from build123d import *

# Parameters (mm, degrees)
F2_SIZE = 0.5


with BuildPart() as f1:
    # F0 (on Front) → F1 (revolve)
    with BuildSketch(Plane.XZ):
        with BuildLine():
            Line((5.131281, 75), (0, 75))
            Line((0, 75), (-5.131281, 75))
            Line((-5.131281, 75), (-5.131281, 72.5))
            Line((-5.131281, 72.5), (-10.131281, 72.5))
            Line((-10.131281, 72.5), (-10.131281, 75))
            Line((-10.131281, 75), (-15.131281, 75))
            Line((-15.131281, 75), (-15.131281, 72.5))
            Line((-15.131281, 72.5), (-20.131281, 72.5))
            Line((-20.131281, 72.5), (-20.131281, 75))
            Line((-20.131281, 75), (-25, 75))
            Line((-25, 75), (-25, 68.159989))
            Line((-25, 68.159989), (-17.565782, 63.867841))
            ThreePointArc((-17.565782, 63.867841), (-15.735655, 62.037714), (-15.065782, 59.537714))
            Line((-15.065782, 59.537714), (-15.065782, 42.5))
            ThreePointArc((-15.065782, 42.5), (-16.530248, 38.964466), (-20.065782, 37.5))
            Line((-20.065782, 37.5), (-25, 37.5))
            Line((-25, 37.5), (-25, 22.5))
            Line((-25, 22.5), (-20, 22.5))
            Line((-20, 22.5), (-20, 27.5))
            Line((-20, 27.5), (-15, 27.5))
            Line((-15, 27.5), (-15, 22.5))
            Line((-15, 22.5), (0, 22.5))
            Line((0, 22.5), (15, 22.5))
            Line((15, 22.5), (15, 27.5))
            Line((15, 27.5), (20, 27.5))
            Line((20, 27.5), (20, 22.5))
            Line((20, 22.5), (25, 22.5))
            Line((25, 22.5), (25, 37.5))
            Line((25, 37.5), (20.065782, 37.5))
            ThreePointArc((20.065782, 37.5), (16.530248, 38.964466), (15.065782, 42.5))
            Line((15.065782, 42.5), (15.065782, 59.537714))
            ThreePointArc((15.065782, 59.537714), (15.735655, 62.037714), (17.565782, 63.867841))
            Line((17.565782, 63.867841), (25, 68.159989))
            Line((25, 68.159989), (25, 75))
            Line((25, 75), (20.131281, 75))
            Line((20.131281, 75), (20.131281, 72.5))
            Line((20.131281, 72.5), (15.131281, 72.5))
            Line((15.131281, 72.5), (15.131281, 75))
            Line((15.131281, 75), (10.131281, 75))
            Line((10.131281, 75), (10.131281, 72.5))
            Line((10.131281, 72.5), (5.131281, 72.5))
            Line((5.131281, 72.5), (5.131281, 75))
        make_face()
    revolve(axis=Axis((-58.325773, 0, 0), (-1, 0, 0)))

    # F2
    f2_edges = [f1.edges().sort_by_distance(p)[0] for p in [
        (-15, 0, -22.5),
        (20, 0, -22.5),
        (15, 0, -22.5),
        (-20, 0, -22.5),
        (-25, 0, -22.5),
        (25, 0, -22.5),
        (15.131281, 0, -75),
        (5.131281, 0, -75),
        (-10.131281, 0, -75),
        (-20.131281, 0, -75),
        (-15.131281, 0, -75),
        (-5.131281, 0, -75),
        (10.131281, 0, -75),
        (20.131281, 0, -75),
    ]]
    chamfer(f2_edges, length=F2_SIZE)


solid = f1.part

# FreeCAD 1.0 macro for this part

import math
import FreeCAD as App
import Part
import Sketcher

V = App.Vector
Q = App.Units.Quantity


def edges_at(feature, points):
    """Names of the edges that pass closest to the given points."""
    edges = feature.Shape.Edges
    near = lambda p: min(range(len(edges)), key=lambda i: edges[i].distToShape(Part.Vertex(*p))[0])
    return sorted({f"Edge{near(p) + 1}" for p in points})

doc = App.newDocument("Part")
body = doc.addObject("PartDesign::Body", "Body")

# Sketch on XZ plane
sketch1 = body.newObject("Sketcher::SketchObject", "Sketch")
sketch1.AttachmentSupport = (doc.getObject("XZ_Plane"), [""])
sketch1.MapMode = "FlatFace"
sketch1.addGeometry(Part.LineSegment(V(5.131281, 75, 0), V(-5.131281, 75, 0)), False)
sketch1.addGeometry(Part.LineSegment(V(-5.131281, 75, 0), V(-5.131281, 72.5, 0)), False)
sketch1.addGeometry(Part.LineSegment(V(-5.131281, 72.5, 0), V(-10.131281, 72.5, 0)), False)
sketch1.addGeometry(Part.LineSegment(V(-10.131281, 72.5, 0), V(-10.131281, 75, 0)), False)
sketch1.addGeometry(Part.LineSegment(V(-10.131281, 75, 0), V(-15.131281, 75, 0)), False)
sketch1.addGeometry(Part.LineSegment(V(-15.131281, 75, 0), V(-15.131281, 72.5, 0)), False)
sketch1.addGeometry(Part.LineSegment(V(-15.131281, 72.5, 0), V(-20.131281, 72.5, 0)), False)
sketch1.addGeometry(Part.LineSegment(V(-20.131281, 72.5, 0), V(-20.131281, 75, 0)), False)
sketch1.addGeometry(Part.LineSegment(V(-20.131281, 75, 0), V(-25, 75, 0)), False)
sketch1.addGeometry(Part.LineSegment(V(-25, 75, 0), V(-25, 68.159989, 0)), False)
sketch1.addGeometry(Part.LineSegment(V(-25, 68.159989, 0), V(-17.565782, 63.867841, 0)), False)
sketch1.addGeometry(Part.ArcOfCircle(Part.Circle(V(-20.065782, 59.537714, 0), V(0, 0, 1), 5), math.radians(0.000001), math.radians(60)), False)
sketch1.addGeometry(Part.LineSegment(V(-15.065782, 59.537714, 0), V(-15.065782, 42.5, 0)), False)
sketch1.addGeometry(Part.ArcOfCircle(Part.Circle(V(-20.065782, 42.5, 0), V(0, 0, 1), 5), math.radians(-90.000004), math.radians(0.000004)), False)
sketch1.addGeometry(Part.LineSegment(V(-20.065782, 37.5, 0), V(-25, 37.5, 0)), False)
sketch1.addGeometry(Part.LineSegment(V(-25, 37.5, 0), V(-25, 22.5, 0)), False)
sketch1.addGeometry(Part.LineSegment(V(-25, 22.5, 0), V(-20, 22.5, 0)), False)
sketch1.addGeometry(Part.LineSegment(V(-20, 22.5, 0), V(-20, 27.5, 0)), False)
sketch1.addGeometry(Part.LineSegment(V(-20, 27.5, 0), V(-15, 27.5, 0)), False)
sketch1.addGeometry(Part.LineSegment(V(-15, 27.5, 0), V(-15, 22.5, 0)), False)
sketch1.addGeometry(Part.LineSegment(V(-15, 22.5, 0), V(15, 22.5, 0)), False)
sketch1.addGeometry(Part.LineSegment(V(15, 22.5, 0), V(15, 27.5, 0)), False)
sketch1.addGeometry(Part.LineSegment(V(15, 27.5, 0), V(20, 27.5, 0)), False)
sketch1.addGeometry(Part.LineSegment(V(20, 27.5, 0), V(20, 22.5, 0)), False)
sketch1.addGeometry(Part.LineSegment(V(20, 22.5, 0), V(25, 22.5, 0)), False)
sketch1.addGeometry(Part.LineSegment(V(25, 22.5, 0), V(25, 37.5, 0)), False)
sketch1.addGeometry(Part.LineSegment(V(25, 37.5, 0), V(20.065782, 37.5, 0)), False)
sketch1.addGeometry(Part.ArcOfCircle(Part.Circle(V(20.065782, 42.5, 0), V(0, 0, 1), 5), math.radians(179.999996), math.radians(270.000004)), False)
sketch1.addGeometry(Part.LineSegment(V(15.065782, 42.5, 0), V(15.065782, 59.537714, 0)), False)
sketch1.addGeometry(Part.ArcOfCircle(Part.Circle(V(20.065782, 59.537714, 0), V(0, 0, 1), 5), math.radians(120), math.radians(179.999999)), False)
sketch1.addGeometry(Part.LineSegment(V(17.565782, 63.867841, 0), V(25, 68.159989, 0)), False)
sketch1.addGeometry(Part.LineSegment(V(25, 68.159989, 0), V(25, 75, 0)), False)
sketch1.addGeometry(Part.LineSegment(V(25, 75, 0), V(20.131281, 75, 0)), False)
sketch1.addGeometry(Part.LineSegment(V(20.131281, 75, 0), V(20.131281, 72.5, 0)), False)
sketch1.addGeometry(Part.LineSegment(V(20.131281, 72.5, 0), V(15.131281, 72.5, 0)), False)
sketch1.addGeometry(Part.LineSegment(V(15.131281, 72.5, 0), V(15.131281, 75, 0)), False)
sketch1.addGeometry(Part.LineSegment(V(15.131281, 75, 0), V(10.131281, 75, 0)), False)
sketch1.addGeometry(Part.LineSegment(V(10.131281, 75, 0), V(10.131281, 72.5, 0)), False)
sketch1.addGeometry(Part.LineSegment(V(10.131281, 72.5, 0), V(5.131281, 72.5, 0)), False)
sketch1.addGeometry(Part.LineSegment(V(5.131281, 72.5, 0), V(5.131281, 75, 0)), False)
sketch1.addConstraint(Sketcher.Constraint("Coincident", 0, 2, 1, 1))
sketch1.addConstraint(Sketcher.Constraint("Coincident", 1, 2, 2, 1))
sketch1.addConstraint(Sketcher.Constraint("Coincident", 2, 2, 3, 1))
sketch1.addConstraint(Sketcher.Constraint("Coincident", 3, 2, 4, 1))
sketch1.addConstraint(Sketcher.Constraint("Coincident", 4, 2, 5, 1))
sketch1.addConstraint(Sketcher.Constraint("Coincident", 5, 2, 6, 1))
sketch1.addConstraint(Sketcher.Constraint("Coincident", 6, 2, 7, 1))
sketch1.addConstraint(Sketcher.Constraint("Coincident", 7, 2, 8, 1))
sketch1.addConstraint(Sketcher.Constraint("Coincident", 8, 2, 9, 1))
sketch1.addConstraint(Sketcher.Constraint("Coincident", 9, 2, 10, 1))
sketch1.addConstraint(Sketcher.Constraint("Tangent", 10, 2, 11, 2))
sketch1.addConstraint(Sketcher.Constraint("Tangent", 11, 1, 12, 1))
sketch1.addConstraint(Sketcher.Constraint("Tangent", 12, 2, 13, 2))
sketch1.addConstraint(Sketcher.Constraint("Tangent", 13, 1, 14, 1))
sketch1.addConstraint(Sketcher.Constraint("Coincident", 14, 2, 15, 1))
sketch1.addConstraint(Sketcher.Constraint("Coincident", 15, 2, 16, 1))
sketch1.addConstraint(Sketcher.Constraint("Coincident", 16, 2, 17, 1))
sketch1.addConstraint(Sketcher.Constraint("Coincident", 17, 2, 18, 1))
sketch1.addConstraint(Sketcher.Constraint("Coincident", 18, 2, 19, 1))
sketch1.addConstraint(Sketcher.Constraint("Coincident", 19, 2, 20, 1))
sketch1.addConstraint(Sketcher.Constraint("Coincident", 20, 2, 21, 1))
sketch1.addConstraint(Sketcher.Constraint("Coincident", 21, 2, 22, 1))
sketch1.addConstraint(Sketcher.Constraint("Coincident", 22, 2, 23, 1))
sketch1.addConstraint(Sketcher.Constraint("Coincident", 23, 2, 24, 1))
sketch1.addConstraint(Sketcher.Constraint("Coincident", 24, 2, 25, 1))
sketch1.addConstraint(Sketcher.Constraint("Coincident", 25, 2, 26, 1))
sketch1.addConstraint(Sketcher.Constraint("Tangent", 26, 2, 27, 2))
sketch1.addConstraint(Sketcher.Constraint("Tangent", 27, 1, 28, 1))
sketch1.addConstraint(Sketcher.Constraint("Tangent", 28, 2, 29, 2))
sketch1.addConstraint(Sketcher.Constraint("Tangent", 29, 1, 30, 1))
sketch1.addConstraint(Sketcher.Constraint("Coincident", 30, 2, 31, 1))
sketch1.addConstraint(Sketcher.Constraint("Coincident", 31, 2, 32, 1))
sketch1.addConstraint(Sketcher.Constraint("Coincident", 32, 2, 33, 1))
sketch1.addConstraint(Sketcher.Constraint("Coincident", 33, 2, 34, 1))
sketch1.addConstraint(Sketcher.Constraint("Coincident", 34, 2, 35, 1))
sketch1.addConstraint(Sketcher.Constraint("Coincident", 35, 2, 36, 1))
sketch1.addConstraint(Sketcher.Constraint("Coincident", 36, 2, 37, 1))
sketch1.addConstraint(Sketcher.Constraint("Coincident", 37, 2, 38, 1))
sketch1.addConstraint(Sketcher.Constraint("Coincident", 38, 2, 39, 1))
sketch1.addConstraint(Sketcher.Constraint("Coincident", 39, 2, 0, 1))
sketch1.addConstraint(Sketcher.Constraint("Horizontal", 0))
sketch1.addConstraint(Sketcher.Constraint("Vertical", 1))
sketch1.addConstraint(Sketcher.Constraint("Horizontal", 2))
sketch1.addConstraint(Sketcher.Constraint("Vertical", 3))
sketch1.addConstraint(Sketcher.Constraint("Horizontal", 4))
sketch1.addConstraint(Sketcher.Constraint("Vertical", 5))
sketch1.addConstraint(Sketcher.Constraint("Horizontal", 6))
sketch1.addConstraint(Sketcher.Constraint("Vertical", 7))
sketch1.addConstraint(Sketcher.Constraint("Horizontal", 8))
sketch1.addConstraint(Sketcher.Constraint("Vertical", 9))
sketch1.addConstraint(Sketcher.Constraint("Vertical", 12))
sketch1.addConstraint(Sketcher.Constraint("Horizontal", 14))
sketch1.addConstraint(Sketcher.Constraint("Vertical", 15))
sketch1.addConstraint(Sketcher.Constraint("Horizontal", 16))
sketch1.addConstraint(Sketcher.Constraint("Vertical", 17))
sketch1.addConstraint(Sketcher.Constraint("Horizontal", 18))
sketch1.addConstraint(Sketcher.Constraint("Vertical", 19))
sketch1.addConstraint(Sketcher.Constraint("Horizontal", 20))
sketch1.addConstraint(Sketcher.Constraint("Vertical", 21))
sketch1.addConstraint(Sketcher.Constraint("Horizontal", 22))
sketch1.addConstraint(Sketcher.Constraint("Vertical", 23))
sketch1.addConstraint(Sketcher.Constraint("Horizontal", 24))
sketch1.addConstraint(Sketcher.Constraint("Vertical", 25))
sketch1.addConstraint(Sketcher.Constraint("Horizontal", 26))
sketch1.addConstraint(Sketcher.Constraint("Vertical", 28))
sketch1.addConstraint(Sketcher.Constraint("Vertical", 31))
sketch1.addConstraint(Sketcher.Constraint("Horizontal", 32))
sketch1.addConstraint(Sketcher.Constraint("Vertical", 33))
sketch1.addConstraint(Sketcher.Constraint("Horizontal", 34))
sketch1.addConstraint(Sketcher.Constraint("Vertical", 35))
sketch1.addConstraint(Sketcher.Constraint("Horizontal", 36))
sketch1.addConstraint(Sketcher.Constraint("Vertical", 37))
sketch1.addConstraint(Sketcher.Constraint("Horizontal", 38))
sketch1.addConstraint(Sketcher.Constraint("Vertical", 39))
sketch1.addConstraint(Sketcher.Constraint("Equal", 11, 13))
sketch1.addConstraint(Sketcher.Constraint("Equal", 13, 27))
sketch1.addConstraint(Sketcher.Constraint("Equal", 27, 29))
sketch1.addConstraint(Sketcher.Constraint("Symmetric", 13, 3, 27, 3, -2))
sketch1.addConstraint(Sketcher.Constraint("Symmetric", 18, 2, 21, 2, -2))
sketch1.addConstraint(Sketcher.Constraint("Symmetric", 16, 2, 23, 2, -2))
sketch1.addConstraint(Sketcher.Constraint("Symmetric", 10, 2, 29, 1, -2))
sketch1.addConstraint(Sketcher.Constraint("Symmetric", 8, 2, 31, 2, -2))
sketch1.addConstraint(Sketcher.Constraint("Symmetric", 6, 2, 33, 2, -2))
sketch1.addConstraint(Sketcher.Constraint("Symmetric", 4, 2, 35, 2, -2))
sketch1.addConstraint(Sketcher.Constraint("Symmetric", 2, 2, 37, 2, -2))
sketch1.addConstraint(Sketcher.Constraint("Horizontal", 0, 2, 3, 2))
sketch1.addConstraint(Sketcher.Constraint("Horizontal", 2, 2, 5, 2))
sketch1.addConstraint(Sketcher.Constraint("Horizontal", 4, 2, 7, 2))
sketch1.addConstraint(Sketcher.Constraint("Horizontal", 16, 2, 19, 2))
sketch1.addConstraint(Sketcher.Constraint("Vertical", 9, 2, 14, 2))
sketch1.addConstraint(Sketcher.Constraint("Vertical", 25, 2, 30, 2))
sketch1.addConstraint(Sketcher.Constraint("Equal", 2, 4))
sketch1.addConstraint(Sketcher.Constraint("Equal", 4, 6))
sketch1.addConstraint(Sketcher.Constraint("Equal", 6, 16))
sketch1.addConstraint(Sketcher.Constraint("Equal", 16, 18))
sketch1.addConstraint(Sketcher.Constraint("Equal", 36, 38))
sketch1.addConstraint(Sketcher.Constraint("Equal", 38, 17))
sketch1.addConstraint(Sketcher.Constraint("Radius", 11, Q("5 mm")))
sketch1.addConstraint(Sketcher.Constraint("DistanceX", 2, 2, 2, 1, Q("5 mm")))
sketch1.addConstraint(Sketcher.Constraint("DistanceX", 20, 1, 20, 2, Q("30 mm")))
sketch1.addConstraint(Sketcher.Constraint("DistanceY", 15, 2, 15, 1, Q("15 mm")))
sketch1.addConstraint(Sketcher.Constraint("Angle", 10, Q("-30.000001 deg")))
sketch1.addConstraint(Sketcher.Constraint("DistanceY", 1, 2, 1, 1, Q("2.5 mm")))
sketch1.addConstraint(Sketcher.Constraint("DistanceY", -1, 1, 0, 2, Q("75 mm")))
sketch1.addConstraint(Sketcher.Constraint("DistanceY", 13, 3, 1, 2, Q("30 mm")))
sketch1.addConstraint(Sketcher.Constraint("DistanceX", 8, 2, 8, 1, Q("4.868719 mm")))
sketch1.addConstraint(Sketcher.Constraint("DistanceX", 14, 2, 14, 1, Q("4.934218 mm")))
sketch1.addConstraint(Sketcher.Constraint("DistanceY", 9, 2, 9, 1, Q("6.840011 mm")))
revolution = body.newObject("PartDesign::Revolution", "Revolution")
revolution.Profile = sketch1
revolution.ReferenceAxis = (sketch1, ["H_Axis"])
revolution.Angle = 360
doc.recompute()

chamfer = body.newObject("PartDesign::Chamfer", "Chamfer")
chamfer.Base = (revolution, edges_at(revolution, [
    (-15, 0, -22.5),
    (20, 0, -22.5),
    (15, 0, -22.5),
    (-20, 0, -22.5),
    (-25, 0, -22.5),
    (25, 0, -22.5),
    (15.131, 0, -75),
    (5.131, 0, -75),
    (-10.131, 0, -75),
    (-20.131, 0, -75),
    (-15.131, 0, -75),
    (-5.131, 0, -75),
    (10.131, 0, -75),
    (20.131, 0, -75),
]))
chamfer.Size = 0.5

doc.recompute()
